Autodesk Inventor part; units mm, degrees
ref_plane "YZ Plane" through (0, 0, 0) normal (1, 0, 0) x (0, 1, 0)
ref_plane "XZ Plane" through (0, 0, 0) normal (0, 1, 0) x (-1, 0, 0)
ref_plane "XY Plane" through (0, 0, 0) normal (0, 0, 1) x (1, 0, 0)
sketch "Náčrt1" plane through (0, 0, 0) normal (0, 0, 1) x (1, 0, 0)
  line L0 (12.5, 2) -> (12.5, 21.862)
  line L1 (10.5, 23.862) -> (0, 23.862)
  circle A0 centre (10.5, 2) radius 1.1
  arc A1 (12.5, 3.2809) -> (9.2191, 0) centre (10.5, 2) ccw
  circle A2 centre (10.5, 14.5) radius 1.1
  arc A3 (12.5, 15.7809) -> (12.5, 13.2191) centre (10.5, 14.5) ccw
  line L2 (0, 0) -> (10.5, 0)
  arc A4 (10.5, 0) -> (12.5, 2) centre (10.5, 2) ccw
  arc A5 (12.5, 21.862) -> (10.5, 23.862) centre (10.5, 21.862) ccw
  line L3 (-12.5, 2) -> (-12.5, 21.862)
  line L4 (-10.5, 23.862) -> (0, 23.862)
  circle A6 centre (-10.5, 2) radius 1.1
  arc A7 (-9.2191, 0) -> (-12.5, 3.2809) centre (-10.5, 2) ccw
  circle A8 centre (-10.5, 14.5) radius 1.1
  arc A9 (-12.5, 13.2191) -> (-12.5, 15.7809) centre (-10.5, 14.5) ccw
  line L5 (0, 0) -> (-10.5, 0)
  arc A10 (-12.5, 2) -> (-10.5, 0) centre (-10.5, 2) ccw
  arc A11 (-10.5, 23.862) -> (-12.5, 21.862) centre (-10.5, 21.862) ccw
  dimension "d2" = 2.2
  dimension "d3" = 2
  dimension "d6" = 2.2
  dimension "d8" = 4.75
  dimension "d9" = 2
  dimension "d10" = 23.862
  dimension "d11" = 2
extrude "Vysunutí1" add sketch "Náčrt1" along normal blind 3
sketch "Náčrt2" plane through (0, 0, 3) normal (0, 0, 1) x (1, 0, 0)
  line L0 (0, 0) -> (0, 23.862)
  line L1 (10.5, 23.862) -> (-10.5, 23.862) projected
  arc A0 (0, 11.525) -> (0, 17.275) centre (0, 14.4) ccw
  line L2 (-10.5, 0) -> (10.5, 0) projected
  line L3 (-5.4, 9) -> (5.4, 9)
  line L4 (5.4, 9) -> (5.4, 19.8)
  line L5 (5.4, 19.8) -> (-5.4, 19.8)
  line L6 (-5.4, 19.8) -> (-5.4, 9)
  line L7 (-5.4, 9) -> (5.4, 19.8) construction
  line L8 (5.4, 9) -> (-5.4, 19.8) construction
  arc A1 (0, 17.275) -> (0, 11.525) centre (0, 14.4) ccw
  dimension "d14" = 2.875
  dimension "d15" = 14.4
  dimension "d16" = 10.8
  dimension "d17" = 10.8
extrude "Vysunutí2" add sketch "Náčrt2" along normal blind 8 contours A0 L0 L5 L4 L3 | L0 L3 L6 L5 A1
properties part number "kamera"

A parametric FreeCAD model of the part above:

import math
import FreeCAD as App
import Part
import Sketcher


def add_polygon(sketch, points):
    """Adds a closed chain of lines whose ends are joined by coincident constraints."""
    first, n = sketch.GeometryCount, len(points)
    for a, b in zip(points, points[1:] + points[:1]):
        sketch.addGeometry(Part.LineSegment(App.Vector(*a, 0), App.Vector(*b, 0)), False)
    for i in range(n):
        sketch.addConstraint(Sketcher.Constraint("Coincident", first + i, 2, first + (i + 1) % n, 1))

doc = App.newDocument("Part")
body = doc.addObject("PartDesign::Body", "Body")

sketch1 = body.newObject("Sketcher::SketchObject", "Sketch")
sketch1.AttachmentSupport = (doc.getObject("XY_Plane"), [""])
sketch1.MapMode = "FlatFace"
sketch1.addGeometry(Part.ArcOfCircle(Part.Circle(App.Vector(10.5, 2, 0), App.Vector(0, 0, 1), 2), math.radians(-90), math.radians(0)), False)
sketch1.addGeometry(Part.LineSegment(App.Vector(12.5, 2, 0), App.Vector(12.5, 21.9, 0)), False)
sketch1.addGeometry(Part.ArcOfCircle(Part.Circle(App.Vector(10.5, 21.9, 0), App.Vector(0, 0, 1), 2), math.radians(0), math.radians(90)), False)
sketch1.addGeometry(Part.LineSegment(App.Vector(10.5, 23.9, 0), App.Vector(-10.5, 23.9, 0)), False)
sketch1.addGeometry(Part.ArcOfCircle(Part.Circle(App.Vector(-10.5, 21.9, 0), App.Vector(0, 0, 1), 2), math.radians(90), math.radians(180)), False)
sketch1.addGeometry(Part.LineSegment(App.Vector(-12.5, 21.9, 0), App.Vector(-12.5, 2, 0)), False)
sketch1.addGeometry(Part.ArcOfCircle(Part.Circle(App.Vector(-10.5, 2, 0), App.Vector(0, 0, 1), 2), math.radians(180), math.radians(270)), False)
sketch1.addGeometry(Part.LineSegment(App.Vector(-10.5, 0, 0), App.Vector(10.5, 0, 0)), False)
sketch1.addGeometry(Part.Circle(App.Vector(10.5, 2, 0), App.Vector(0, 0, 1), 1.1), False)
sketch1.addGeometry(Part.Circle(App.Vector(-10.5, 2, 0), App.Vector(0, 0, 1), 1.1), False)
sketch1.addGeometry(Part.Circle(App.Vector(-10.5, 14.5, 0), App.Vector(0, 0, 1), 1.1), False)
sketch1.addGeometry(Part.Circle(App.Vector(10.5, 14.5, 0), App.Vector(0, 0, 1), 1.1), False)
sketch1.addConstraint(Sketcher.Constraint("Tangent", 0, 2, 1, 1))
sketch1.addConstraint(Sketcher.Constraint("Tangent", 1, 2, 2, 1))
sketch1.addConstraint(Sketcher.Constraint("Tangent", 2, 2, 3, 1))
sketch1.addConstraint(Sketcher.Constraint("Tangent", 3, 2, 4, 1))
sketch1.addConstraint(Sketcher.Constraint("Tangent", 4, 2, 5, 1))
sketch1.addConstraint(Sketcher.Constraint("Tangent", 5, 2, 6, 1))
sketch1.addConstraint(Sketcher.Constraint("Tangent", 6, 2, 7, 1))
sketch1.addConstraint(Sketcher.Constraint("Tangent", 7, 2, 0, 1))
sketch1.addConstraint(Sketcher.Constraint("Vertical", 1))
sketch1.addConstraint(Sketcher.Constraint("Horizontal", 3))
sketch1.addConstraint(Sketcher.Constraint("Vertical", 5))
sketch1.addConstraint(Sketcher.Constraint("Horizontal", 7))
sketch1.addConstraint(Sketcher.Constraint("Coincident", 8, 3, 0, 3))
sketch1.addConstraint(Sketcher.Constraint("Coincident", 9, 3, 6, 3))
sketch1.addConstraint(Sketcher.Constraint("Equal", 0, 2))
sketch1.addConstraint(Sketcher.Constraint("Equal", 2, 4))
sketch1.addConstraint(Sketcher.Constraint("Equal", 4, 6))
sketch1.addConstraint(Sketcher.Constraint("Equal", 8, 9))
sketch1.addConstraint(Sketcher.Constraint("Equal", 9, 10))
sketch1.addConstraint(Sketcher.Constraint("Equal", 10, 11))
sketch1.addConstraint(Sketcher.Constraint("Symmetric", 6, 2, 7, 2, -1, 1))
sketch1.addConstraint(Sketcher.Constraint("Symmetric", 10, 3, 11, 3, -2))
sketch1.addConstraint(Sketcher.Constraint("Vertical", 9, 3, 10, 3))
sketch1.addConstraint(Sketcher.Constraint("Radius", 0, 2.0))
sketch1.addConstraint(Sketcher.Constraint("Diameter", 8, 2.2))
sketch1.addConstraint(Sketcher.Constraint("DistanceX", 3, 2, 3, 1, 21.0))
sketch1.addConstraint(Sketcher.Constraint("DistanceY", -1, 1, 2, 2, 23.862))
sketch1.addConstraint(Sketcher.Constraint("DistanceY", -1, 1, 10, 3, 14.5))
pad1 = body.newObject("PartDesign::Pad", "Pad")
pad1.Profile = sketch1
pad1.Length = 3

sketch2 = body.newObject("Sketcher::SketchObject", "Sketch001")
sketch2.AttachmentSupport = (doc.getObject("XY_Plane"), [""])
sketch2.MapMode = "FlatFace"
sketch2.AttachmentOffset = App.Placement(App.Vector(0, 0, 3), App.Rotation())
add_polygon(sketch2, [(5.4, 19.8), (-5.4, 19.8), (-5.4, 9), (5.4, 9)])
sketch2.addGeometry(Part.Circle(App.Vector(0, 14.4, 0), App.Vector(0, 0, 1), 2.9), False)
sketch2.addConstraint(Sketcher.Constraint("Horizontal", 0))
sketch2.addConstraint(Sketcher.Constraint("Vertical", 1))
sketch2.addConstraint(Sketcher.Constraint("Horizontal", 2))
sketch2.addConstraint(Sketcher.Constraint("Vertical", 3))
sketch2.addConstraint(Sketcher.Constraint("PointOnObject", 4, 3, -2))
sketch2.addConstraint(Sketcher.Constraint("Equal", 2, 1))
sketch2.addConstraint(Sketcher.Constraint("Diameter", 4, 5.75))
sketch2.addConstraint(Sketcher.Constraint("DistanceX", 0, 2, 0, 1, 10.8))
sketch2.addConstraint(Sketcher.Constraint("DistanceY", -1, 1, 4, 3, 14.4))
sketch2.addConstraint(Sketcher.Constraint("DistanceY", -1, 1, 1, 2, 9.0))
sketch2.addConstraint(Sketcher.Constraint("DistanceX", 0, 2, -1, 1, 5.4))
pad2 = body.newObject("PartDesign::Pad", "Pad001")
pad2.Profile = sketch2
pad2.Length = 8

doc.recompute()
